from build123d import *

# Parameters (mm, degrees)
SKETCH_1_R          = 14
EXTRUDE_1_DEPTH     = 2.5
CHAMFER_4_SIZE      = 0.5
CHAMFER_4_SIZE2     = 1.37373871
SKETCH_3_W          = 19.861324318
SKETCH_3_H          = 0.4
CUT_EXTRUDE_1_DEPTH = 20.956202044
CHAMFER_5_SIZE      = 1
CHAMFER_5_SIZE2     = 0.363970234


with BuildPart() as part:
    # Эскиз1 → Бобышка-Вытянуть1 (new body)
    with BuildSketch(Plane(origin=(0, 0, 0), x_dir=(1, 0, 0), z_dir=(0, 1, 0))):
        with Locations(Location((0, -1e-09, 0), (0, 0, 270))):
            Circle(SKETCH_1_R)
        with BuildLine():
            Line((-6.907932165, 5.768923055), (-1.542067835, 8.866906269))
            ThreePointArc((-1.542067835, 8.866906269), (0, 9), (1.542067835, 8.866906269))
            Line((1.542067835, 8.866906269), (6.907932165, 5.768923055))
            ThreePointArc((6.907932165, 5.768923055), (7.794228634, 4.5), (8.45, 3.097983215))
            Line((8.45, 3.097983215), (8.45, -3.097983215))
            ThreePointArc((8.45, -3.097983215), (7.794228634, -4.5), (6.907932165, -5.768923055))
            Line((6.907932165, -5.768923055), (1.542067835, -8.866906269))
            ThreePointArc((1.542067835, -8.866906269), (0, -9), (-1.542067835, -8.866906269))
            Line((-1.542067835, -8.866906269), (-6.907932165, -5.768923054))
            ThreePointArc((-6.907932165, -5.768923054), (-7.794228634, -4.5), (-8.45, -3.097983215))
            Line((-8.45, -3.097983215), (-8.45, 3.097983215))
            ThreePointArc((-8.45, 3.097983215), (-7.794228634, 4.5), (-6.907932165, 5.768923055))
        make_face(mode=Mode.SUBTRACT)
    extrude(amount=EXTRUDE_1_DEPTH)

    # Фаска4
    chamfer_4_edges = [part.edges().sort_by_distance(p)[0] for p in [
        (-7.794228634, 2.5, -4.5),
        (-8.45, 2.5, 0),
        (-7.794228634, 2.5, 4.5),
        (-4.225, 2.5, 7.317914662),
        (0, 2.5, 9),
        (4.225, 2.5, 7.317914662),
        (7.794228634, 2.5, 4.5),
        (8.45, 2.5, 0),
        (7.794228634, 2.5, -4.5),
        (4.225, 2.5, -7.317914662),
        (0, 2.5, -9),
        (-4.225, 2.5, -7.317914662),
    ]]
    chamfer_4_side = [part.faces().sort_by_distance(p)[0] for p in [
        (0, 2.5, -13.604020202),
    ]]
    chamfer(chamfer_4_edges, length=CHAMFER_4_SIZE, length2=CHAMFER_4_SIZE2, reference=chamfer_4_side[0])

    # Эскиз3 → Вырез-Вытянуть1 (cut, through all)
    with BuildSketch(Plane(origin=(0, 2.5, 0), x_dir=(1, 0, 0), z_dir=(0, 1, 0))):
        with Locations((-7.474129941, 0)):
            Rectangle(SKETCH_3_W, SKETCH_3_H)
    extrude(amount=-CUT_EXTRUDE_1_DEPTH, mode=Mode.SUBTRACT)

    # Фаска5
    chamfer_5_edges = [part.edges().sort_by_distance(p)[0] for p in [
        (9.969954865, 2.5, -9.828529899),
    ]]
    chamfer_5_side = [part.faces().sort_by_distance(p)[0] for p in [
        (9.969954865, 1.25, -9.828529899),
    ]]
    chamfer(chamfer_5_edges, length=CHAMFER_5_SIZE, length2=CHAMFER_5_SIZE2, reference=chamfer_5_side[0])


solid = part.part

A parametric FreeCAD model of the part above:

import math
import FreeCAD as App
import Part
import Sketcher

V = App.Vector
Q = App.Units.Quantity


def edges_at(feature, points):
    """Names of the edges that pass closest to the given points."""
    edges = feature.Shape.Edges
    near = lambda p: min(range(len(edges)), key=lambda i: edges[i].distToShape(Part.Vertex(*p))[0])
    return sorted({f"Edge{near(p) + 1}" for p in points})

doc = App.newDocument("Part")
body = doc.addObject("PartDesign::Body", "Body")

# Sketch on XZ plane
sketch1 = doc.addObject("Sketcher::SketchObject", "Sketch")
body.addObject(sketch1)
sketch1.AttachmentSupport = (doc.XZ_Plane, [""])
sketch1.MapMode = "FlatFace"
sketch1.addGeometry(Part.Circle(V(0, 0, 0), V(0, 0, 1), 14), False)
sketch1.addGeometry(Part.ArcOfCircle(Part.Circle(V(0, 0, 0), V(0, 0, 1), 9), math.radians(-159.87), math.radians(-140.13)), False)
sketch1.addGeometry(Part.LineSegment(V(-6.9, -5.8, 0), V(-1.5, -8.9, 0)), False)
sketch1.addGeometry(Part.ArcOfCircle(Part.Circle(V(0, 0, 0), V(0, 0, 1), 9), math.radians(-99.87), math.radians(-80.13)), False)
sketch1.addGeometry(Part.LineSegment(V(1.5, -8.9, 0), V(6.9, -5.8, 0)), False)
sketch1.addGeometry(Part.ArcOfCircle(Part.Circle(V(0, 0, 0), V(0, 0, 1), 9), math.radians(-39.87), math.radians(-20.13)), False)
sketch1.addGeometry(Part.LineSegment(V(8.4, -3.1, 0), V(8.4, 3.1, 0)), False)
sketch1.addGeometry(Part.ArcOfCircle(Part.Circle(V(0, 0, 0), V(0, 0, 1), 9), math.radians(20.13), math.radians(39.87)), False)
sketch1.addGeometry(Part.LineSegment(V(6.9, 5.8, 0), V(1.5, 8.9, 0)), False)
sketch1.addGeometry(Part.ArcOfCircle(Part.Circle(V(0, 0, 0), V(0, 0, 1), 9), math.radians(80.13), math.radians(99.87)), False)
sketch1.addGeometry(Part.LineSegment(V(-1.5, 8.9, 0), V(-6.9, 5.8, 0)), False)
sketch1.addGeometry(Part.ArcOfCircle(Part.Circle(V(0, 0, 0), V(0, 0, 1), 9), math.radians(140.13), math.radians(159.87)), False)
sketch1.addGeometry(Part.LineSegment(V(-8.4, 3.1, 0), V(-8.4, -3.1, 0)), False)
sketch1.addConstraint(Sketcher.Constraint("Coincident", 1, 2, 2, 1))
sketch1.addConstraint(Sketcher.Constraint("Coincident", 2, 2, 3, 1))
sketch1.addConstraint(Sketcher.Constraint("Coincident", 3, 2, 4, 1))
sketch1.addConstraint(Sketcher.Constraint("Coincident", 4, 2, 5, 1))
sketch1.addConstraint(Sketcher.Constraint("Coincident", 5, 2, 6, 1))
sketch1.addConstraint(Sketcher.Constraint("Coincident", 6, 2, 7, 1))
sketch1.addConstraint(Sketcher.Constraint("Coincident", 7, 2, 8, 1))
sketch1.addConstraint(Sketcher.Constraint("Coincident", 8, 2, 9, 1))
sketch1.addConstraint(Sketcher.Constraint("Coincident", 9, 2, 10, 1))
sketch1.addConstraint(Sketcher.Constraint("Coincident", 10, 2, 11, 1))
sketch1.addConstraint(Sketcher.Constraint("Coincident", 11, 2, 12, 1))
sketch1.addConstraint(Sketcher.Constraint("Coincident", 12, 2, 1, 1))
sketch1.addConstraint(Sketcher.Constraint("Vertical", 6))
sketch1.addConstraint(Sketcher.Constraint("Vertical", 12))
sketch1.addConstraint(Sketcher.Constraint("Coincident", 0, 3, -1, 1))
sketch1.addConstraint(Sketcher.Constraint("Coincident", 1, 3, -1, 1))
sketch1.addConstraint(Sketcher.Constraint("Coincident", 3, 3, -1, 1))
sketch1.addConstraint(Sketcher.Constraint("Coincident", 5, 3, -1, 1))
sketch1.addConstraint(Sketcher.Constraint("Coincident", 7, 3, -1, 1))
sketch1.addConstraint(Sketcher.Constraint("Coincident", 9, 3, -1, 1))
sketch1.addConstraint(Sketcher.Constraint("Coincident", 11, 3, -1, 1))
sketch1.addConstraint(Sketcher.Constraint("Equal", 1, 3))
sketch1.addConstraint(Sketcher.Constraint("Equal", 3, 5))
sketch1.addConstraint(Sketcher.Constraint("Equal", 5, 7))
sketch1.addConstraint(Sketcher.Constraint("Equal", 7, 9))
sketch1.addConstraint(Sketcher.Constraint("Equal", 9, 11))
sketch1.addConstraint(Sketcher.Constraint("Parallel", 2, 8))
sketch1.addConstraint(Sketcher.Constraint("Parallel", 4, 10))
sketch1.addConstraint(Sketcher.Constraint("Horizontal", 2, 2, 3, 2))
sketch1.addConstraint(Sketcher.Constraint("Horizontal", 1, 2, 4, 2))
sketch1.addConstraint(Sketcher.Constraint("Horizontal", 8, 2, 9, 2))
sketch1.addConstraint(Sketcher.Constraint("Horizontal", 6, 2, 11, 2))
sketch1.addConstraint(Sketcher.Constraint("Vertical", 4, 2, 7, 2))
sketch1.addConstraint(Sketcher.Constraint("Diameter", 0, 28.0))
sketch1.addConstraint(Sketcher.Constraint("Radius", 1, 9.0))
sketch1.addConstraint(Sketcher.Constraint("Angle", 2, Q("-30 deg")))
sketch1.addConstraint(Sketcher.Constraint("DistanceX", -1, 1, 5, 2, 8.45))
sketch1.addConstraint(Sketcher.Constraint("DistanceX", 1, 2, 3, 2, 8.45))
pad1 = doc.addObject("PartDesign::Pad", "Pad")
body.addObject(pad1)
pad1.Profile = sketch1
pad1.Length = 2.5
pad1.Reversed = True
doc.recompute()

chamfer = doc.addObject("PartDesign::Chamfer", "Chamfer")
body.addObject(chamfer)
chamfer.Base = (pad1, edges_at(pad1, [
    (-7.794, 2.5, -4.5),
    (-8.45, 2.5, 0),
    (-7.794, 2.5, 4.5),
    (-4.225, 2.5, 7.318),
    (0, 2.5, 9),
    (4.225, 2.5, 7.318),
    (7.794, 2.5, 4.5),
    (8.45, 2.5, 0),
    (7.794, 2.5, -4.5),
    (4.225, 2.5, -7.318),
    (0, 2.5, -9),
    (-4.225, 2.5, -7.318),
]))
chamfer.ChamferType = "Two distances"
chamfer.Size = 0.5
chamfer.Size2 = 1.373739
chamfer.FlipDirection = True

# Sketch on XZ plane
sketch2 = doc.addObject("Sketcher::SketchObject", "Sketch001")
body.addObject(sketch2)
sketch2.AttachmentSupport = (doc.XZ_Plane, [""])
sketch2.MapMode = "FlatFace"
sketch2.AttachmentOffset = App.Placement(V(0, 0, -2.5), App.Rotation())
sketch2.addGeometry(Part.LineSegment(V(-17.4, -0.2, 0), V(-17.4, 0.2, 0)), False)
sketch2.addGeometry(Part.LineSegment(V(-17.4, 0.2, 0), V(2.46, 0.2, 0)), False)
sketch2.addGeometry(Part.LineSegment(V(2.46, 0.2, 0), V(2.46, -0.2, 0)), False)
sketch2.addGeometry(Part.LineSegment(V(2.46, -0.2, 0), V(-17.4, -0.2, 0)), False)
sketch2.addConstraint(Sketcher.Constraint("Coincident", 0, 2, 1, 1))
sketch2.addConstraint(Sketcher.Constraint("Coincident", 1, 2, 2, 1))
sketch2.addConstraint(Sketcher.Constraint("Coincident", 2, 2, 3, 1))
sketch2.addConstraint(Sketcher.Constraint("Coincident", 3, 2, 0, 1))
sketch2.addConstraint(Sketcher.Constraint("Vertical", 0))
sketch2.addConstraint(Sketcher.Constraint("Horizontal", 1))
sketch2.addConstraint(Sketcher.Constraint("Vertical", 2))
sketch2.addConstraint(Sketcher.Constraint("Horizontal", 3))
sketch2.addConstraint(Sketcher.Constraint("DistanceY", 0, 1, 0, 2, 0.4))
sketch2.addConstraint(Sketcher.Constraint("DistanceY", -1, 1, 0, 2, 0.2))
sketch2.addConstraint(Sketcher.Constraint("DistanceX", 1, 1, 1, 2, 19.861324))
sketch2.addConstraint(Sketcher.Constraint("DistanceX", 0, 2, -1, 1, 17.404792))
pocket1 = doc.addObject("PartDesign::Pocket", "Pocket")
body.addObject(pocket1)
pocket1.Profile = sketch2
pocket1.Type = "ThroughAll"
pocket1.Reversed = True
doc.recompute()

chamfer2 = doc.addObject("PartDesign::Chamfer", "Chamfer001")
body.addObject(chamfer2)
chamfer2.Base = (pocket1, edges_at(pocket1, [(9.97, 2.5, -9.829)]))
chamfer2.ChamferType = "Two distances"
chamfer2.Size = 1
chamfer2.Size2 = 0.36397
chamfer2.FlipDirection = True

doc.recompute()
